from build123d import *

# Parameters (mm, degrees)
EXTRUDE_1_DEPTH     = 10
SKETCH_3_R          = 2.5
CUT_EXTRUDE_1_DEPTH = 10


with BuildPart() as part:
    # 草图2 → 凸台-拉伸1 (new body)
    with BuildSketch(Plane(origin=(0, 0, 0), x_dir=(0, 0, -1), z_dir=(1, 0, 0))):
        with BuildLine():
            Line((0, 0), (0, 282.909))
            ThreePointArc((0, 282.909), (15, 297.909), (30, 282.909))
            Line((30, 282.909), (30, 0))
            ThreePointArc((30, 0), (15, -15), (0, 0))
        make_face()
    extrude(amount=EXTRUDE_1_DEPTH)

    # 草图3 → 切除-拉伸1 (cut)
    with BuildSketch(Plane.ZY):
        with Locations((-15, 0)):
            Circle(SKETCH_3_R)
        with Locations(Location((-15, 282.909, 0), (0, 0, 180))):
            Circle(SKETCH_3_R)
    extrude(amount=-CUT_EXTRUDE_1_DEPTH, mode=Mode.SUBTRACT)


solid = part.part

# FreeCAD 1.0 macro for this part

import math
import FreeCAD as App
import Part
import Sketcher
from FreeCAD import Vector

doc = App.newDocument("Part")
params = doc.addObject("Spreadsheet::Sheet", "Params")
for row, (alias, value) in enumerate([
    ("sketch1_radius", "15 mm"),
    ("pad1_length", "10 mm"),
    ("sketch2_diameter", "5 mm"),
    ("pocket1_length", "10 mm"),
], start=1):
    params.set(f"A{row}", alias)
    params.set(f"B{row}", "=" + value)
    params.setAlias(f"B{row}", alias)

body = doc.addObject("PartDesign::Body", "Body")

# Sketch on YZ plane
sketch1 = body.newObject("Sketcher::SketchObject", "Sketch")
sketch1.AttachmentSupport = (doc.getObject("YZ_Plane"), [""])
sketch1.MapMode = "FlatFace"
sketch1.addGeometry([
    Part.LineSegment(Vector(283, 0, 0), Vector(0, 0, 0)),
    Part.ArcOfCircle(Part.Circle(Vector(0, -15, 0), Vector(0, 0, 1), 15), math.radians(90), math.radians(270)),
    Part.LineSegment(Vector(0, -30, 0), Vector(283, -30, 0)),
    Part.ArcOfCircle(Part.Circle(Vector(283, -15, 0), Vector(0, 0, 1), 15), math.radians(-90), math.radians(90)),
], False)
sketch1.addConstraint([
    Sketcher.Constraint("Tangent", 0, 2, 1, 1),
    Sketcher.Constraint("Tangent", 1, 2, 2, 1),
    Sketcher.Constraint("Tangent", 2, 2, 3, 1),
    Sketcher.Constraint("Tangent", 3, 2, 0, 1),
    Sketcher.Constraint("Horizontal", 0),
    Sketcher.Constraint("Horizontal", 2),
    Sketcher.Constraint("Coincident", 0, 2, -1, 1),
    Sketcher.Constraint("Radius", 1, 15.0),
    Sketcher.Constraint("DistanceX", 0, 2, 0, 1, 282.909),
])
sketch1.setExpression("Constraints[7]", "Params.sketch1_radius")
pad1 = body.newObject("PartDesign::Pad", "Pad")
pad1.Profile = sketch1
pad1.setExpression("Length", "Params.pad1_length")

# Sketch on YZ plane
sketch2 = body.newObject("Sketcher::SketchObject", "Sketch001")
sketch2.AttachmentSupport = (doc.getObject("YZ_Plane"), [""])
sketch2.MapMode = "FlatFace"
sketch2.addGeometry([
    Part.Circle(Vector(0, -15, 0), Vector(0, 0, 1), 2.5),
    Part.Circle(Vector(282.9, -15, 0), Vector(0, 0, 1), 2.5),
], False)
sketch2.addConstraint([
    Sketcher.Constraint("Equal", 0, 1),
    Sketcher.Constraint("PointOnObject", 0, 3, -2),
    Sketcher.Constraint("Horizontal", 0, 3, 1, 3),
    Sketcher.Constraint("Diameter", 0, 5.0),
    Sketcher.Constraint("DistanceY", 0, 3, -1, 1, 15.0),
    Sketcher.Constraint("DistanceX", -1, 1, 1, 3, 282.909),
])
sketch2.setExpression("Constraints[3]", "Params.sketch2_diameter")
pocket1 = body.newObject("PartDesign::Pocket", "Pocket")
pocket1.Profile = sketch2
pocket1.setExpression("Length", "Params.pocket1_length")
pocket1.Reversed = True

doc.recompute()
